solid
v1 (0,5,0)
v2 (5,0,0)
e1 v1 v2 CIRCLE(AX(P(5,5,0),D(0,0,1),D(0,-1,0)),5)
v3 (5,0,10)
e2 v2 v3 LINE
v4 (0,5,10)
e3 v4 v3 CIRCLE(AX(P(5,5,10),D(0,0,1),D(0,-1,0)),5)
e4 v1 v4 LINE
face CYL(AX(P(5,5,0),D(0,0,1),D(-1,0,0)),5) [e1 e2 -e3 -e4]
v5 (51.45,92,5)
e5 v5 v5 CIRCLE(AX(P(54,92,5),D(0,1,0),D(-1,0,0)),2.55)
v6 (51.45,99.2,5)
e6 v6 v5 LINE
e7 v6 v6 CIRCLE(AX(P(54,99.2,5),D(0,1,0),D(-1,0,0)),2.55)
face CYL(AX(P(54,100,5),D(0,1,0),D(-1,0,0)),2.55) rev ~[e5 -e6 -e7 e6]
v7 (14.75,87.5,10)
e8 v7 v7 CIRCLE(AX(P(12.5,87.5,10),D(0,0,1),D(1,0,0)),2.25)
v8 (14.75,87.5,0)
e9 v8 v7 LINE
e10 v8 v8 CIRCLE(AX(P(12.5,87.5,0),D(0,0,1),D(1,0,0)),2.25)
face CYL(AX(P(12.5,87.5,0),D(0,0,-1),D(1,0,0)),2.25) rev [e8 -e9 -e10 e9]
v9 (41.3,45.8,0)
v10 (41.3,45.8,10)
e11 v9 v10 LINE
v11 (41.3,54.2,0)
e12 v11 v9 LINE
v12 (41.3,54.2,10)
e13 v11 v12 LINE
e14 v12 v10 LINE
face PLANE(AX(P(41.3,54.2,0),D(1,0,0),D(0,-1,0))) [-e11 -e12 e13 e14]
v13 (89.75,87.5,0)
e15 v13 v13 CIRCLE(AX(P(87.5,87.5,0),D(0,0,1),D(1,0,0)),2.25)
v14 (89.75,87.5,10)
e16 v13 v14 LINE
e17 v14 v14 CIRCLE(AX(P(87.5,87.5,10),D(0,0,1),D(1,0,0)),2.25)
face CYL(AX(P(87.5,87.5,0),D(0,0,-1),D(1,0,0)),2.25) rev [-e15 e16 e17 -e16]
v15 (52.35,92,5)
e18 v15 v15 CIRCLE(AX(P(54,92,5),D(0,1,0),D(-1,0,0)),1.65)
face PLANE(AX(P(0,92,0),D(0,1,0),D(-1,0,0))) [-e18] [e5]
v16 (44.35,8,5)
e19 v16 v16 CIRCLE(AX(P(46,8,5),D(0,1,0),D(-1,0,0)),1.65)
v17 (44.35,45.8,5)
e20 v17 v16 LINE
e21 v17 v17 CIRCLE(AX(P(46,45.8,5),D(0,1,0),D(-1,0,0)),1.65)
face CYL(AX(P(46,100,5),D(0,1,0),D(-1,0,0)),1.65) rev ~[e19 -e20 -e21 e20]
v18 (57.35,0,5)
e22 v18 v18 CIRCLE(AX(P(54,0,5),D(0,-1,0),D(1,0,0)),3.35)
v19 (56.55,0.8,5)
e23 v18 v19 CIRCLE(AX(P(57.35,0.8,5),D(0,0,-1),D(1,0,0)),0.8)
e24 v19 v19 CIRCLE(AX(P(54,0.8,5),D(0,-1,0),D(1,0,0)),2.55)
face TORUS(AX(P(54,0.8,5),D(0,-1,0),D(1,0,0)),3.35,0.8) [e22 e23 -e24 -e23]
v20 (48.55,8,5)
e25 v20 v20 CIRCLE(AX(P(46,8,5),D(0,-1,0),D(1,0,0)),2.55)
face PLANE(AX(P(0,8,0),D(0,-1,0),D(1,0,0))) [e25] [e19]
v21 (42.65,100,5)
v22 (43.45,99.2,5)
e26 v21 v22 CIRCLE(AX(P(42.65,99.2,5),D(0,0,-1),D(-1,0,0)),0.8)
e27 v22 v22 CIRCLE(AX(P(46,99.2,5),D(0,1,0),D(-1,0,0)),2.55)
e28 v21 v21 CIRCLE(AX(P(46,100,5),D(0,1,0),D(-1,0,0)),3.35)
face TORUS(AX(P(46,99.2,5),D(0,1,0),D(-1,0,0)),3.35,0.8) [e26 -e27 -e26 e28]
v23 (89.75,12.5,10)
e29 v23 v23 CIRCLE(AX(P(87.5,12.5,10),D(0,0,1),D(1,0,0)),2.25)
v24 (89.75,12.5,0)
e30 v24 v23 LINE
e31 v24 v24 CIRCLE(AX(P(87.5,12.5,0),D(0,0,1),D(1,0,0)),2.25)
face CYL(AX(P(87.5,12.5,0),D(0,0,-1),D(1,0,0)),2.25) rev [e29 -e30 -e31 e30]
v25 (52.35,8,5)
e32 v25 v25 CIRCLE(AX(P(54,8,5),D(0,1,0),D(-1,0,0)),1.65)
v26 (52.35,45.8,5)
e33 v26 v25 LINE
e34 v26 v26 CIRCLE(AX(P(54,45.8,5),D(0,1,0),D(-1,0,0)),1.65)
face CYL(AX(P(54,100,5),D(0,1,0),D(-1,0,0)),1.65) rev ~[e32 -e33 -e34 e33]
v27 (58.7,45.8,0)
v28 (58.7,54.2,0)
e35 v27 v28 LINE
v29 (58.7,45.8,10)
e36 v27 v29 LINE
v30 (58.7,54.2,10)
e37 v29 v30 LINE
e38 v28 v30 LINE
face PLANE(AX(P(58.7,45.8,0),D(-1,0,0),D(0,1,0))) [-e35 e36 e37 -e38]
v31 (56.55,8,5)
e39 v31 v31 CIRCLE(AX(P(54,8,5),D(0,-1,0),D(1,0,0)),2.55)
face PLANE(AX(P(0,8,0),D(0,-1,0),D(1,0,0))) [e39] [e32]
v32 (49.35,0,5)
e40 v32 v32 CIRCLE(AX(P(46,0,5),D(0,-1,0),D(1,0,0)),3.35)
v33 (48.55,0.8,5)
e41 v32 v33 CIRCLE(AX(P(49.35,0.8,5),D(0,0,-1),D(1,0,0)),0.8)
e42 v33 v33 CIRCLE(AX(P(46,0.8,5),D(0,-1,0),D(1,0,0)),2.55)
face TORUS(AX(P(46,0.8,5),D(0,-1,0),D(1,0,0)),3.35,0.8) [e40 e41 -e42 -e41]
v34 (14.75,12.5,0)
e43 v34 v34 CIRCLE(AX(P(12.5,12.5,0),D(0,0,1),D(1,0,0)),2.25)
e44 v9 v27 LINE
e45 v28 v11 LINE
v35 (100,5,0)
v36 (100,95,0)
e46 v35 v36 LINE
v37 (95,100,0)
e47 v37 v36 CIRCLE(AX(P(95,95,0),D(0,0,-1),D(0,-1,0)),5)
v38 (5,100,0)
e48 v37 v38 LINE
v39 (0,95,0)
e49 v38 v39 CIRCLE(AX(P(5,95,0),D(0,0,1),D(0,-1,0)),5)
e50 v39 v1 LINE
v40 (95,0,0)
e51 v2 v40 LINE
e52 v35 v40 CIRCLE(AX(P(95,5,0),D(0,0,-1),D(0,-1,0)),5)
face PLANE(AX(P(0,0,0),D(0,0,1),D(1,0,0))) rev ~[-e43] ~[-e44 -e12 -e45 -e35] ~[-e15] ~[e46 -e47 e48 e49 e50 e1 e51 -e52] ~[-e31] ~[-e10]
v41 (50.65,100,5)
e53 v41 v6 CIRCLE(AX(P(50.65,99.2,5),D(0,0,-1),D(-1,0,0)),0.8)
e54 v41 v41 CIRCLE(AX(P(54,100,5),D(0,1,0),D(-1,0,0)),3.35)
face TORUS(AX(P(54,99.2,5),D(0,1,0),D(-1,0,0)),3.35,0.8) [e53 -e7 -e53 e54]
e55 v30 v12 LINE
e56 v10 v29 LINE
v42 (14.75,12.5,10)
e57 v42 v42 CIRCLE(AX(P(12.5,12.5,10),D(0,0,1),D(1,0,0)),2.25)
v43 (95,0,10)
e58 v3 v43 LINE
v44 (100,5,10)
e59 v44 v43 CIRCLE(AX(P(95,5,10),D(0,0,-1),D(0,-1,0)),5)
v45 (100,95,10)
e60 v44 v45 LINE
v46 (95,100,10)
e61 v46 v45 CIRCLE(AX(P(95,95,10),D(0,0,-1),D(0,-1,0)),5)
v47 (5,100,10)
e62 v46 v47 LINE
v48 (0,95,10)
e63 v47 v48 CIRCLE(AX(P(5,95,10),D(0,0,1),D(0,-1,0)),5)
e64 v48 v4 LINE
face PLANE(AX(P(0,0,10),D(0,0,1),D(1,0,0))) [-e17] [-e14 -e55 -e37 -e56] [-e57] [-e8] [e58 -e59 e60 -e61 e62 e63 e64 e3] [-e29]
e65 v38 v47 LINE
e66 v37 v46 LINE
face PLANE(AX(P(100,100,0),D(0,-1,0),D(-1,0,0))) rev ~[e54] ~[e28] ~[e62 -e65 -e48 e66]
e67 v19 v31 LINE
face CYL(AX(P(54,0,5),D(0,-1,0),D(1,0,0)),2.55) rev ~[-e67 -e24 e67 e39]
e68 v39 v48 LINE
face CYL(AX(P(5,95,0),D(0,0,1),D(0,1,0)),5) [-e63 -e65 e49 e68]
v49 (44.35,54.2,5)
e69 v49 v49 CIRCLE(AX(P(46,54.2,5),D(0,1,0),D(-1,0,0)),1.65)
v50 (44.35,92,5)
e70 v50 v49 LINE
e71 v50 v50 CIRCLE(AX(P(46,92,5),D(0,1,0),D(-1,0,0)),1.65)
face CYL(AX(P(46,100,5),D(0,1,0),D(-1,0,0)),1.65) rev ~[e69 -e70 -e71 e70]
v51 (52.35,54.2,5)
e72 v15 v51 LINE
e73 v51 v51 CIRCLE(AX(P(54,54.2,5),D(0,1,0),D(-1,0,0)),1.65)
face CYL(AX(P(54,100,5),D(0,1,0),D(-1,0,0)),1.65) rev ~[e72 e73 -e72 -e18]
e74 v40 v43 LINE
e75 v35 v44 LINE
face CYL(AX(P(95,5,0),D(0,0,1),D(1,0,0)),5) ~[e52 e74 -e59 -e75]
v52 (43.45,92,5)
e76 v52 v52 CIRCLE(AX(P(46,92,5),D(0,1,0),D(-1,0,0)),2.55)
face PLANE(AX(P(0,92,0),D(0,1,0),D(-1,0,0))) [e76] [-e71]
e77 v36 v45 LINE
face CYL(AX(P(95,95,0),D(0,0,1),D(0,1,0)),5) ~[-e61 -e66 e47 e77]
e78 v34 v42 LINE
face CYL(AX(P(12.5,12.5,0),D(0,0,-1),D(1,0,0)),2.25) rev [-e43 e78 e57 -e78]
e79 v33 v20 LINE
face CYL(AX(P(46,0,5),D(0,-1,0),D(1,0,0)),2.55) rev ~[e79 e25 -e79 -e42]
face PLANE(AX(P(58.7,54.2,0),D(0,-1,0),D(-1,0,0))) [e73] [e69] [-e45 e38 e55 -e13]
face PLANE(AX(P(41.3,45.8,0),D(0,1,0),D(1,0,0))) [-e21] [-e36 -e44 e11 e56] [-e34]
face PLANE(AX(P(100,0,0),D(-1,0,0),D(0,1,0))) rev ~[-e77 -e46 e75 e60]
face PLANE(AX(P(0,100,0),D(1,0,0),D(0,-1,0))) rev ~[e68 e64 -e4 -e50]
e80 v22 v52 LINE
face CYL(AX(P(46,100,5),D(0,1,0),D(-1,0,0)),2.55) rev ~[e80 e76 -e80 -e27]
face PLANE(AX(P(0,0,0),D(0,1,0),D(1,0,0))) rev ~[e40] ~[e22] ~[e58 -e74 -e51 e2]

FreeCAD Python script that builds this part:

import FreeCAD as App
import Part
import Sketcher
Q = App.Units.Quantity


def edges_at(feature, points):
    """Names of the edges that pass closest to the given points."""
    edges = feature.Shape.Edges
    near = lambda p: min(range(len(edges)), key=lambda i: edges[i].distToShape(Part.Vertex(*p))[0])
    return sorted({f"Edge{near(p) + 1}" for p in points})


def add_polygon(sketch, points):
    """Adds a closed chain of lines whose ends are joined by coincident constraints."""
    first, n = sketch.GeometryCount, len(points)
    for a, b in zip(points, points[1:] + points[:1]):
        sketch.addGeometry(Part.LineSegment(App.Vector(*a, 0), App.Vector(*b, 0)), False)
    for i in range(n):
        sketch.addConstraint(Sketcher.Constraint("Coincident", first + i, 2, first + (i + 1) % n, 1))

doc = App.newDocument("Part")
body = doc.addObject("PartDesign::Body", "Body")

sketch1 = body.newObject("Sketcher::SketchObject", "Sketch")
sketch1.AttachmentSupport = (doc.getObject("XY_Plane"), [""])
sketch1.MapMode = "FlatFace"
add_polygon(sketch1, [(0, 100), (0, 0), (100, 0), (100, 100)])
sketch1.addGeometry(Part.Circle(App.Vector(12.5, 12.5, 0), App.Vector(0, 0, 1), 2.25), False)
sketch1.addGeometry(Part.Circle(App.Vector(87.5, 12.5, 0), App.Vector(0, 0, 1), 2.25), False)
sketch1.addGeometry(Part.Circle(App.Vector(12.5, 87.5, 0), App.Vector(0, 0, 1), 2.25), False)
add_polygon(sketch1, [(58.7, 45.8), (41.3, 45.8), (41.3, 54.2), (58.7, 54.2)])
sketch1.addGeometry(Part.Circle(App.Vector(87.5, 87.5, 0), App.Vector(0, 0, 1), 2.25), False)
sketch1.addConstraint(Sketcher.Constraint("Vertical", 0))
sketch1.addConstraint(Sketcher.Constraint("Horizontal", 1))
sketch1.addConstraint(Sketcher.Constraint("Vertical", 2))
sketch1.addConstraint(Sketcher.Constraint("Horizontal", 3))
sketch1.addConstraint(Sketcher.Constraint("Horizontal", 7))
sketch1.addConstraint(Sketcher.Constraint("Vertical", 8))
sketch1.addConstraint(Sketcher.Constraint("Horizontal", 9))
sketch1.addConstraint(Sketcher.Constraint("Vertical", 10))
sketch1.addConstraint(Sketcher.Constraint("Coincident", 0, 2, -1, 1))
sketch1.addConstraint(Sketcher.Constraint("Equal", 4, 5))
sketch1.addConstraint(Sketcher.Constraint("Equal", 5, 6))
sketch1.addConstraint(Sketcher.Constraint("Equal", 6, 11))
sketch1.addConstraint(Sketcher.Constraint("Horizontal", 4, 3, 5, 3))
sketch1.addConstraint(Sketcher.Constraint("Horizontal", 6, 3, 11, 3))
sketch1.addConstraint(Sketcher.Constraint("Vertical", 4, 3, 6, 3))
sketch1.addConstraint(Sketcher.Constraint("Vertical", 5, 3, 11, 3))
sketch1.addConstraint(Sketcher.Constraint("Equal", 3, 0))
sketch1.addConstraint(Sketcher.Constraint("Diameter", 4, Q("4.5 mm")))
sketch1.addConstraint(Sketcher.Constraint("DistanceX", 1, 1, 1, 2, Q("100 mm")))
sketch1.addConstraint(Sketcher.Constraint("DistanceX", 7, 2, 7, 1, Q("17.4 mm")))
sketch1.addConstraint(Sketcher.Constraint("DistanceY", 8, 1, 8, 2, Q("8.4 mm")))
sketch1.addConstraint(Sketcher.Constraint("DistanceX", 4, 3, 5, 3, Q("75 mm")))
sketch1.addConstraint(Sketcher.Constraint("DistanceY", 4, 3, 6, 3, Q("75 mm")))
sketch1.addConstraint(Sketcher.Constraint("DistanceX", -1, 1, 4, 3, Q("12.5 mm")))
sketch1.addConstraint(Sketcher.Constraint("DistanceY", -1, 1, 4, 3, Q("12.5 mm")))
sketch1.addConstraint(Sketcher.Constraint("DistanceX", -1, 1, 7, 2, Q("41.3 mm")))
sketch1.addConstraint(Sketcher.Constraint("DistanceY", -1, 1, 7, 2, Q("45.8 mm")))
pad1 = body.newObject("PartDesign::Pad", "Pad")
pad1.Profile = sketch1
pad1.Length = 10

sketch2 = body.newObject("Sketcher::SketchObject", "Sketch001")
sketch2.AttachmentSupport = (doc.getObject("XZ_Plane"), [""])
sketch2.MapMode = "FlatFace"
sketch2.AttachmentOffset = App.Placement(App.Vector(0, 0, -100), App.Rotation())
sketch2.addGeometry(Part.Circle(App.Vector(54, 5, 0), App.Vector(0, 0, 1), 1.65), False)
sketch2.addGeometry(Part.Circle(App.Vector(46, 5, 0), App.Vector(0, 0, 1), 1.65), False)
sketch2.addConstraint(Sketcher.Constraint("Equal", 0, 1))
sketch2.addConstraint(Sketcher.Constraint("Horizontal", 0, 3, 1, 3))
sketch2.addConstraint(Sketcher.Constraint("Diameter", 0, Q("3.3 mm")))
sketch2.addConstraint(Sketcher.Constraint("DistanceX", 1, 3, 0, 3, Q("8 mm")))
sketch2.addConstraint(Sketcher.Constraint("DistanceX", -1, 1, 0, 3, Q("54 mm")))
sketch2.addConstraint(Sketcher.Constraint("DistanceY", -1, 1, 0, 3, Q("5 mm")))
pocket1 = body.newObject("PartDesign::Pocket", "Pocket")
pocket1.Profile = sketch2
pocket1.Length = 100
pocket1.Reversed = True

sketch3 = body.newObject("Sketcher::SketchObject", "Sketch002")
sketch3.AttachmentSupport = (doc.getObject("XZ_Plane"), [""])
sketch3.MapMode = "FlatFace"
sketch3.AttachmentOffset = App.Placement(App.Vector(0, 0, -100), App.Rotation())
sketch3.addGeometry(Part.Circle(App.Vector(54, 5, 0), App.Vector(0, 0, 1), 2.55), False)
sketch3.addGeometry(Part.Circle(App.Vector(54, 5, 0), App.Vector(0, 0, 1), 1.65), False)
sketch3.addGeometry(Part.Circle(App.Vector(46, 5, 0), App.Vector(0, 0, 1), 2.55), False)
sketch3.addGeometry(Part.Circle(App.Vector(46, 5, 0), App.Vector(0, 0, 1), 1.65), False)
sketch3.addConstraint(Sketcher.Constraint("Coincident", 1, 3, 0, 3))
sketch3.addConstraint(Sketcher.Constraint("Coincident", 3, 3, 2, 3))
sketch3.addConstraint(Sketcher.Constraint("Equal", 0, 2))
sketch3.addConstraint(Sketcher.Constraint("Equal", 1, 3))
sketch3.addConstraint(Sketcher.Constraint("Horizontal", 1, 3, 2, 3))
sketch3.addConstraint(Sketcher.Constraint("Diameter", 0, Q("5.1 mm")))
sketch3.addConstraint(Sketcher.Constraint("Diameter", 1, Q("3.3 mm")))
sketch3.addConstraint(Sketcher.Constraint("DistanceX", -1, 1, 0, 3, Q("54 mm")))
sketch3.addConstraint(Sketcher.Constraint("DistanceY", -1, 1, 0, 3, Q("5 mm")))
sketch3.addConstraint(Sketcher.Constraint("DistanceX", -1, 1, 2, 3, Q("46 mm")))
pocket2 = body.newObject("PartDesign::Pocket", "Pocket001")
pocket2.Profile = sketch3
pocket2.Length = 8
pocket2.Reversed = True

sketch4 = body.newObject("Sketcher::SketchObject", "Sketch003")
sketch4.AttachmentSupport = (doc.getObject("XZ_Plane"), [""])
sketch4.MapMode = "FlatFace"
sketch4.addGeometry(Part.Circle(App.Vector(46, 5, 0), App.Vector(0, 0, 1), 2.55), False)
sketch4.addGeometry(Part.Circle(App.Vector(46, 5, 0), App.Vector(0, 0, 1), 1.65), False)
sketch4.addGeometry(Part.Circle(App.Vector(54, 5, 0), App.Vector(0, 0, 1), 2.55), False)
sketch4.addGeometry(Part.Circle(App.Vector(54, 5, 0), App.Vector(0, 0, 1), 1.65), False)
sketch4.addConstraint(Sketcher.Constraint("Coincident", 1, 3, 0, 3))
sketch4.addConstraint(Sketcher.Constraint("Coincident", 3, 3, 2, 3))
sketch4.addConstraint(Sketcher.Constraint("Equal", 0, 2))
sketch4.addConstraint(Sketcher.Constraint("Equal", 1, 3))
sketch4.addConstraint(Sketcher.Constraint("Horizontal", 1, 3, 2, 3))
sketch4.addConstraint(Sketcher.Constraint("Diameter", 0, Q("5.1 mm")))
sketch4.addConstraint(Sketcher.Constraint("Diameter", 1, Q("3.3 mm")))
sketch4.addConstraint(Sketcher.Constraint("DistanceX", -1, 1, 0, 3, Q("46 mm")))
sketch4.addConstraint(Sketcher.Constraint("DistanceY", -1, 1, 0, 3, Q("5 mm")))
sketch4.addConstraint(Sketcher.Constraint("DistanceX", -1, 1, 2, 3, Q("54 mm")))
pocket3 = body.newObject("PartDesign::Pocket", "Pocket002")
pocket3.Profile = sketch4
pocket3.Length = 8
doc.recompute()

fillet = body.newObject("PartDesign::Fillet", "Fillet")
fillet.Base = (pocket3, edges_at(pocket3, [
    (48.377, 100, 5.922),
    (56.377, 100, 5.922),
    (51.623, 0, 5.922),
    (43.623, 0, 5.922),
]))
fillet.Radius = 0.8
doc.recompute()

fillet2 = body.newObject("PartDesign::Fillet", "Fillet001")
fillet2.Base = (fillet, edges_at(fillet, [
    (100, 0, 5),
    (0, 0, 5),
    (100, 100, 5),
    (0, 100, 5),
]))
fillet2.Radius = 5

doc.recompute()
